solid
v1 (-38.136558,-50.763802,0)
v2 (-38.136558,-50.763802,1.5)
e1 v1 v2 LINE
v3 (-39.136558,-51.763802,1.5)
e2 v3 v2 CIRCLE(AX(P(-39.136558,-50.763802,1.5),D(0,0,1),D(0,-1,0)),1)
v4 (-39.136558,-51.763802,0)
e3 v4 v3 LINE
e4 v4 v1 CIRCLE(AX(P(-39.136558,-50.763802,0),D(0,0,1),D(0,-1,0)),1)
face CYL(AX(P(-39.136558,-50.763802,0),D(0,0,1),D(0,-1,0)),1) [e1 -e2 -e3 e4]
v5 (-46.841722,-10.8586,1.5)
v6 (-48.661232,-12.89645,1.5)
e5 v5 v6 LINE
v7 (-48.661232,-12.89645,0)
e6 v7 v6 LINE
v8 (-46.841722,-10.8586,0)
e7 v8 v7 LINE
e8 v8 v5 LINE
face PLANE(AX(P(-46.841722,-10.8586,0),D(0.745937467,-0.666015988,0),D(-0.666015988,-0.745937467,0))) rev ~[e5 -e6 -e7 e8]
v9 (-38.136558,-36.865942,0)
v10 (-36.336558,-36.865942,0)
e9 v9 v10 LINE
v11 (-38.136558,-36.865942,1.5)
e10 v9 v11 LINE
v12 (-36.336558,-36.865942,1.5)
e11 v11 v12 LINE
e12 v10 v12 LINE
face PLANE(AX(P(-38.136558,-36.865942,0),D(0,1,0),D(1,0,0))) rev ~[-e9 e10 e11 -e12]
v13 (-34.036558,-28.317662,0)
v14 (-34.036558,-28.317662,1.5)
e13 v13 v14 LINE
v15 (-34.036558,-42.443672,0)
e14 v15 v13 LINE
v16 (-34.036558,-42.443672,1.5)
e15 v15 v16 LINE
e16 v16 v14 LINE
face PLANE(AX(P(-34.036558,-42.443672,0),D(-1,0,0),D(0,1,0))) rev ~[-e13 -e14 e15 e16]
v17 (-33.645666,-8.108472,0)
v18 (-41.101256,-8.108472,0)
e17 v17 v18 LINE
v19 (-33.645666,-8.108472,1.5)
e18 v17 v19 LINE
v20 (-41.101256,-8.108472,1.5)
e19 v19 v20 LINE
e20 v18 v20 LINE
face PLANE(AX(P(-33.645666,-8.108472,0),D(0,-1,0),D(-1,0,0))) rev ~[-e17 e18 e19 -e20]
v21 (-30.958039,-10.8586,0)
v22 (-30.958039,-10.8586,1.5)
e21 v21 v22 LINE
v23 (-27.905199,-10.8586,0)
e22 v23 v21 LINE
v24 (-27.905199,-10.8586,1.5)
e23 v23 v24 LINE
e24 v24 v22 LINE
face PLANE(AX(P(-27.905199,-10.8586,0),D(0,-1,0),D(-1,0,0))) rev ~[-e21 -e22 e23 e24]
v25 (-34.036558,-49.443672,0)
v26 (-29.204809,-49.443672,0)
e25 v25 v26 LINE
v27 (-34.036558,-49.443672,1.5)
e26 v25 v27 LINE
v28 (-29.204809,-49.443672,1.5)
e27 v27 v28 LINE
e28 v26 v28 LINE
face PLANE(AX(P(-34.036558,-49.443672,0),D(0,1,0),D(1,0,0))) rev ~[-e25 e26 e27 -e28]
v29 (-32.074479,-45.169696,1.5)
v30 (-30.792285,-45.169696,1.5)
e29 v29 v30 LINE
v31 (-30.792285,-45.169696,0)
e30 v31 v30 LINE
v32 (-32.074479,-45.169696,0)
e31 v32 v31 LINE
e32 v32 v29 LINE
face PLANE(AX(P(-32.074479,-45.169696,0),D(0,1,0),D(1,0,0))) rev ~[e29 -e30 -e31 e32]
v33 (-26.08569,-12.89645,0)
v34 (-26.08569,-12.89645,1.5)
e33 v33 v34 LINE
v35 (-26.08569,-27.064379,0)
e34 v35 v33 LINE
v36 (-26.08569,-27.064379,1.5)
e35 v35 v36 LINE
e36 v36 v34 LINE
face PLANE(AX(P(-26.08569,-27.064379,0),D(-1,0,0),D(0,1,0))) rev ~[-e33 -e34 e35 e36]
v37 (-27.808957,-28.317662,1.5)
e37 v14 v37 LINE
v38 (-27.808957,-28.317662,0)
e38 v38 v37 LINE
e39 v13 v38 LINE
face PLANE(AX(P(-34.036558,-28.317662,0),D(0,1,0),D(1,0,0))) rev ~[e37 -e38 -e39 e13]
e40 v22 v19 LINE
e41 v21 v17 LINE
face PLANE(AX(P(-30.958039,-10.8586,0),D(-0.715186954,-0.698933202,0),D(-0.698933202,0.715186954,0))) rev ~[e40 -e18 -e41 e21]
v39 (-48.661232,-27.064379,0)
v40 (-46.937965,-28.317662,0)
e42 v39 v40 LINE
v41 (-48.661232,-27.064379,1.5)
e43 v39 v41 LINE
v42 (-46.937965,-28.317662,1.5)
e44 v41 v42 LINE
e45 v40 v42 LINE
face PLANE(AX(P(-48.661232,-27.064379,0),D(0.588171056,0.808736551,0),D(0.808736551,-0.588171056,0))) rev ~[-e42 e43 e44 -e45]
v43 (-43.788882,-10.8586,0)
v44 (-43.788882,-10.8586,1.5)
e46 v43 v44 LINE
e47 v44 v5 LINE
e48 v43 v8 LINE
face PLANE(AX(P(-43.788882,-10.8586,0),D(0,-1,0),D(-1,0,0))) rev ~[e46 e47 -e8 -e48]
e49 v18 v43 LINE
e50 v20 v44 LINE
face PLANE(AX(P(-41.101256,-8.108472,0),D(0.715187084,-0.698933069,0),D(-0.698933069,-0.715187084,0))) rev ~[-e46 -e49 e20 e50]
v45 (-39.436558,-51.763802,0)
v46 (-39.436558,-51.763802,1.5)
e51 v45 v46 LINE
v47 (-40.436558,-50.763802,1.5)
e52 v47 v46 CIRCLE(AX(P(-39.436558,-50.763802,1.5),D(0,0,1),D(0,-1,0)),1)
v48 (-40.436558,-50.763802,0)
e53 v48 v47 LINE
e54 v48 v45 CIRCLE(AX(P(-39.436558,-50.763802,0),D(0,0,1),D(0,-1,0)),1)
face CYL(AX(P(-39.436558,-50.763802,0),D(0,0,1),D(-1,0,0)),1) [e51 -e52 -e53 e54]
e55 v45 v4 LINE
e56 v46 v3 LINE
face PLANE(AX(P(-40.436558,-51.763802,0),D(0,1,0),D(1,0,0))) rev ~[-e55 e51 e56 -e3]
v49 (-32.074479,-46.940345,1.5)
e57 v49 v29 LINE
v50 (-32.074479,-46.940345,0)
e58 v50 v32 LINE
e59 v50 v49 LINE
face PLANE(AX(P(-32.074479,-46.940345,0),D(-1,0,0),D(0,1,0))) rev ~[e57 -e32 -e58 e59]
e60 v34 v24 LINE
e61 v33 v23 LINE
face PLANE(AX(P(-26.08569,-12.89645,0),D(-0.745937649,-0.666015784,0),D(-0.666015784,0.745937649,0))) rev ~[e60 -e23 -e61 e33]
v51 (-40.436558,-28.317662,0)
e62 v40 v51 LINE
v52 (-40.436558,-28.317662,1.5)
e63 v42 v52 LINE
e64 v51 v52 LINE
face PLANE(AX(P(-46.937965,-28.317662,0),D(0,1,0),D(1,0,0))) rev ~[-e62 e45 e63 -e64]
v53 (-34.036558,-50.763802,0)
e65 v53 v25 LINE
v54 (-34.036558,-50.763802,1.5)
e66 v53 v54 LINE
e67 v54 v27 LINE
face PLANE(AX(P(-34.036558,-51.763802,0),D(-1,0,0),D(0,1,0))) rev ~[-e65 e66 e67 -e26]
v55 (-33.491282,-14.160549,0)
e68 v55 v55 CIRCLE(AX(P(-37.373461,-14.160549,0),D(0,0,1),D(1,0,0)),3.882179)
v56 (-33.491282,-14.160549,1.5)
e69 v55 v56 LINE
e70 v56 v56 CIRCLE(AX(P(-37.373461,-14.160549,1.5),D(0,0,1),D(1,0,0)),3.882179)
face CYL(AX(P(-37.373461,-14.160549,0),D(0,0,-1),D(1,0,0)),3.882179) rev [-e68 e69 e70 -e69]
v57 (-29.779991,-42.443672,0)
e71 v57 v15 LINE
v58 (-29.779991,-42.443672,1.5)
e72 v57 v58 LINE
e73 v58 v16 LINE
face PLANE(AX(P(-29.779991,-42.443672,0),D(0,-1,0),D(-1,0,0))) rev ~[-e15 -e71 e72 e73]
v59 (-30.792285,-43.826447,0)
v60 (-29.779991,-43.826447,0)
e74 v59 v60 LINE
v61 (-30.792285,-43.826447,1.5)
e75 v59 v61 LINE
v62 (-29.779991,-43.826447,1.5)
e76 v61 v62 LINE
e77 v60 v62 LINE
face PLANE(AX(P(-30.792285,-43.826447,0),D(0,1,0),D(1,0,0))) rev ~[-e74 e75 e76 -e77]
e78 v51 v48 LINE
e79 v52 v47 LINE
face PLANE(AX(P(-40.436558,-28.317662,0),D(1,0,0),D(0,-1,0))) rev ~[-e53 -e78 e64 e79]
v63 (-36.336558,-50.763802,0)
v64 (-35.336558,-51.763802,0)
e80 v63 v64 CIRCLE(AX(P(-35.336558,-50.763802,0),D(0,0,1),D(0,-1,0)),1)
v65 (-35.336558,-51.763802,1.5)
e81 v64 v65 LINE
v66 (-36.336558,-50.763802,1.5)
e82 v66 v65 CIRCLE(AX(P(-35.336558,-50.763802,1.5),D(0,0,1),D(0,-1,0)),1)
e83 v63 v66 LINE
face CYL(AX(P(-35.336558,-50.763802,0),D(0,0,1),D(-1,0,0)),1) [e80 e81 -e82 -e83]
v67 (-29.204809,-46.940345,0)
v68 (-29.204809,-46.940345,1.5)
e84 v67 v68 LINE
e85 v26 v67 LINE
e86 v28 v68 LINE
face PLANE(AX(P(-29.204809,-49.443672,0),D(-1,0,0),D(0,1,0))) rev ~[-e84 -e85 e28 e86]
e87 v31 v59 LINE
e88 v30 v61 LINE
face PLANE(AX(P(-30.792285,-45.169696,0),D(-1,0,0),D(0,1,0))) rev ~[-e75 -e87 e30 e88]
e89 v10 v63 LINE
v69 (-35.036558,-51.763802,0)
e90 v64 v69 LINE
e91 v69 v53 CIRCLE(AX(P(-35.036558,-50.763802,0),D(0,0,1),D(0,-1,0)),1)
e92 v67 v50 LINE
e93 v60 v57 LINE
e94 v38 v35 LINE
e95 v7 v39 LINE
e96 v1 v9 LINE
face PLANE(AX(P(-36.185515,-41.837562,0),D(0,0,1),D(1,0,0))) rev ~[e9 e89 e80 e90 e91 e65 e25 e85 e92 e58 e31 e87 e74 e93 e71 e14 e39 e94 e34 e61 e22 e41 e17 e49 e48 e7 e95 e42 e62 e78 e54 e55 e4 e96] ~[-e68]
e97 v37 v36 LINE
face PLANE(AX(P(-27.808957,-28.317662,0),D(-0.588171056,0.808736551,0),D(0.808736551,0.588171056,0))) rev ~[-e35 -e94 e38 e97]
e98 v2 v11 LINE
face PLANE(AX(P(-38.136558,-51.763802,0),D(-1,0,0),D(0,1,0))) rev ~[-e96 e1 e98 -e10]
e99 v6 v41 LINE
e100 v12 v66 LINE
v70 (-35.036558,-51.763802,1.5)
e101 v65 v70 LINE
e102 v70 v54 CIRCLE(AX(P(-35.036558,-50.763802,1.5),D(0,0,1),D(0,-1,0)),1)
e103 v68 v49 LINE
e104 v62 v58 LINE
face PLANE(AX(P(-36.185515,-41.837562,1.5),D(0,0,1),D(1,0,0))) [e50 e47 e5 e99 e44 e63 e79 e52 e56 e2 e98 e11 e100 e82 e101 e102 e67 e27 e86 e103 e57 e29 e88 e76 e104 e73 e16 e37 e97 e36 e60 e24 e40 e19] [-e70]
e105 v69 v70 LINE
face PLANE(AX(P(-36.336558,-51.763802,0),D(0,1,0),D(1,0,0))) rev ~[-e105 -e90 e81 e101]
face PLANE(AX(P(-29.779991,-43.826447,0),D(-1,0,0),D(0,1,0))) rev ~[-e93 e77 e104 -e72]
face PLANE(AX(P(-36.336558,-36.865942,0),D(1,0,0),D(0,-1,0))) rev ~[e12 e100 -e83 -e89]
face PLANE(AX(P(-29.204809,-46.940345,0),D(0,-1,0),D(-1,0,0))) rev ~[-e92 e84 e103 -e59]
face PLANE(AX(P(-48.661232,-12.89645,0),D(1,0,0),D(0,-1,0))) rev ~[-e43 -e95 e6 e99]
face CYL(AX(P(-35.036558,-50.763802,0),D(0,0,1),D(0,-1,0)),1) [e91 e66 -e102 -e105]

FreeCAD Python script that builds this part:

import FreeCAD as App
import Part
import Sketcher
from FreeCAD import Vector
Q = App.Units.Quantity


def edges_at(feature, points):
    """Names of the edges that pass closest to the given points."""
    edges = feature.Shape.Edges
    near = lambda p: min(range(len(edges)), key=lambda i: edges[i].distToShape(Part.Vertex(*p))[0])
    return sorted({f"Edge{near(p) + 1}" for p in points})


def add_polygon(sketch, points):
    """Adds a closed chain of lines whose ends are joined by coincident constraints."""
    first, n = sketch.GeometryCount, len(points)
    for a, b in zip(points, points[1:] + points[:1]):
        sketch.addGeometry(Part.LineSegment(App.Vector(*a, 0), App.Vector(*b, 0)), False)
    for i in range(n):
        sketch.addConstraint(Sketcher.Constraint("Coincident", first + i, 2, first + (i + 1) % n, 1))

doc = App.newDocument("Part")
body = doc.addObject("PartDesign::Body", "Body")

sketch1 = body.newObject("Sketcher::SketchObject", "Sketch")
sketch1.AttachmentSupport = (doc.getObject("XY_Plane"), [""])
sketch1.MapMode = "FlatFace"
add_polygon(sketch1, [(-40.4, -28.3), (-40.4, -51.8), (-38.1, -51.8), (-38.1, -36.9), (-36.3, -36.9), (-36.3, -51.8), (-34, -51.8), (-34, -49.4), (-29.2, -49.4), (-29.2, -46.9), (-32.1, -46.9), (-32.1, -45.2), (-30.8, -45.2), (-30.8, -43.8), (-29.8, -43.8), (-29.8, -42.4), (-34, -42.4), (-34, -28.3), (-27.8, -28.3), (-26.1, -27.1), (-26.1, -12.9), (-27.9, -10.9), (-31, -10.9), (-33.6, -8.1), (-41.1, -8.1), (-43.8, -10.9), (-46.8, -10.9), (-48.7, -12.9), (-48.7, -27.1), (-46.9, -28.3)])
sketch1.addGeometry(Part.Circle(Vector(-37.4, -14.2, 0), Vector(0, 0, 1), 3.9), False)
sketch1.addConstraint([
    Sketcher.Constraint("Vertical", 0),
    Sketcher.Constraint("Horizontal", 1),
    Sketcher.Constraint("Vertical", 2),
    Sketcher.Constraint("Horizontal", 3),
    Sketcher.Constraint("Vertical", 4),
    Sketcher.Constraint("Horizontal", 5),
    Sketcher.Constraint("Vertical", 6),
    Sketcher.Constraint("Horizontal", 7),
    Sketcher.Constraint("Vertical", 8),
    Sketcher.Constraint("Horizontal", 9),
    Sketcher.Constraint("Vertical", 10),
    Sketcher.Constraint("Horizontal", 11),
    Sketcher.Constraint("Vertical", 12),
    Sketcher.Constraint("Horizontal", 13),
    Sketcher.Constraint("Vertical", 14),
    Sketcher.Constraint("Horizontal", 15),
    Sketcher.Constraint("Vertical", 16),
    Sketcher.Constraint("Horizontal", 17),
    Sketcher.Constraint("Vertical", 19),
    Sketcher.Constraint("Horizontal", 21),
    Sketcher.Constraint("Horizontal", 23),
    Sketcher.Constraint("Horizontal", 25),
    Sketcher.Constraint("Vertical", 27),
    Sketcher.Constraint("Horizontal", 29),
    Sketcher.Constraint("Horizontal", 1, 2, 4, 2),
    Sketcher.Constraint("Horizontal", 21, 2, 24, 2),
    Sketcher.Constraint("Horizontal", 19, 2, 26, 2),
    Sketcher.Constraint("Horizontal", 18, 2, 27, 2),
    Sketcher.Constraint("Horizontal", 17, 2, 28, 2),
    Sketcher.Constraint("Vertical", 6, 2, 15, 2),
    Sketcher.Constraint("Equal", 1, 5),
    Sketcher.Constraint("Equal", 21, 25),
    Sketcher.Constraint("Equal", 22, 24),
    Sketcher.Constraint("Equal", 20, 26),
    Sketcher.Constraint("Equal", 18, 28),
    Sketcher.Constraint("DistanceX", 1, 1, 1, 2, Q("2.3 mm")),
    Sketcher.Constraint("DistanceX", 3, 1, 3, 2, Q("1.8 mm")),
    Sketcher.Constraint("Diameter", 30, Q("7.764358 mm")),
    Sketcher.Constraint("DistanceX", 17, 1, 17, 2, Q("6.227601 mm")),
    Sketcher.Constraint("DistanceX", 7, 1, 7, 2, Q("4.831749 mm")),
    Sketcher.Constraint("DistanceX", 9, 2, 9, 1, Q("2.86967 mm")),
    Sketcher.Constraint("DistanceX", 21, 2, 21, 1, Q("3.05284 mm")),
    Sketcher.Constraint("DistanceX", 23, 2, 23, 1, Q("7.45559 mm")),
    Sketcher.Constraint("DistanceY", 0, 2, 0, 1, Q("23.44614 mm")),
    Sketcher.Constraint("DistanceY", 2, 1, 2, 2, Q("14.89786 mm")),
    Sketcher.Constraint("DistanceY", 6, 1, 6, 2, Q("2.32013 mm")),
    Sketcher.Constraint("DistanceY", 10, 1, 10, 2, Q("1.770649 mm")),
    Sketcher.Constraint("DistanceY", 12, 1, 12, 2, Q("1.343249 mm")),
    Sketcher.Constraint("DistanceY", 16, 1, 16, 2, Q("14.12601 mm")),
    Sketcher.Constraint("DistanceY", 19, 1, 19, 2, Q("14.167929 mm")),
    Sketcher.Constraint("DistanceY", 0, 2, -1, 1, Q("51.763802 mm")),
    Sketcher.Constraint("DistanceX", 20, 2, -1, 1, Q("27.905199 mm")),
    Sketcher.Constraint("DistanceY", 20, 2, -1, 1, Q("10.8586 mm")),
    Sketcher.Constraint("DistanceX", 14, 2, 18, 2, Q("3.694301 mm")),
    Sketcher.Constraint("DistanceY", 30, 3, 19, 2, Q("1.264099 mm")),
    Sketcher.Constraint("Distance", 20, Q("2.731931 mm")),
    Sketcher.Constraint("DistanceX", 11, 1, 11, 2, Q("1.282194 mm")),
    Sketcher.Constraint("DistanceX", 13, 1, 13, 2, Q("1.012294 mm")),
    Sketcher.Constraint("DistanceX", 29, 1, 29, 2, Q("6.501407 mm")),
    Sketcher.Constraint("DistanceY", 8, 1, 8, 2, Q("2.503327 mm")),
    Sketcher.Constraint("DistanceX", 30, 3, -1, 1, Q("37.373461 mm")),
    Sketcher.Constraint("DistanceY", 30, 3, -1, 1, Q("14.160549 mm")),
    Sketcher.Constraint("DistanceY", 16, 2, 22, 2, Q("20.20919 mm")),
])
pad1 = body.newObject("PartDesign::Pad", "Pad")
pad1.Profile = sketch1
pad1.Length = 1.5
doc.recompute()

fillet = body.newObject("PartDesign::Fillet", "Fillet")
fillet.Base = (pad1, edges_at(pad1, [
    (-38.137, -51.764, 0.75),
    (-36.337, -51.764, 0.75),
    (-40.437, -51.764, 0.75),
    (-34.037, -51.764, 0.75),
]))
fillet.Radius = 1

doc.recompute()
